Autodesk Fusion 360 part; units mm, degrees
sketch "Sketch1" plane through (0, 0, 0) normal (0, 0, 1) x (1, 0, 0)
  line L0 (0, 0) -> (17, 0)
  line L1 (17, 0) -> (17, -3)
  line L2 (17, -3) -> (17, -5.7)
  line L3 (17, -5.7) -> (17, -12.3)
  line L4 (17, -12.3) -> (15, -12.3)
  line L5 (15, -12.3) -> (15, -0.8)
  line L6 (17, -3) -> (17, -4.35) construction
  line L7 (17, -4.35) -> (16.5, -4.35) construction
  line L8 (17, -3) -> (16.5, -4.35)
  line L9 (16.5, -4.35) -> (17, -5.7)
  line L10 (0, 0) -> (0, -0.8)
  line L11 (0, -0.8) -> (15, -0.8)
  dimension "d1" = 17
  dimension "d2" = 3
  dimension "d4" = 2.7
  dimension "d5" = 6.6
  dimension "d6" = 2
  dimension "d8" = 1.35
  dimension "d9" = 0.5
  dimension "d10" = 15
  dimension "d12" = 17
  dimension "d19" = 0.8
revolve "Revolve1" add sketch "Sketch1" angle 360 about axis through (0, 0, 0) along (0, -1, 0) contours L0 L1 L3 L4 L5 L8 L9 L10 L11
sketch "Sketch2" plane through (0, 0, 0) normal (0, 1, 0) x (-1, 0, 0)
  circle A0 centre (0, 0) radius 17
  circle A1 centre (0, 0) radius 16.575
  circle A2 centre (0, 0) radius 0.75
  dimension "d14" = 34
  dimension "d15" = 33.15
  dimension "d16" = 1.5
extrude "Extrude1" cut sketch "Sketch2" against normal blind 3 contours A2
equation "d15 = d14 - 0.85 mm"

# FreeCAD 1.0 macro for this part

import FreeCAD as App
import Part
import Sketcher
from FreeCAD import Vector
Q = App.Units.Quantity

doc = App.newDocument("Part")
body = doc.addObject("PartDesign::Body", "Body")

# Sketch on XY plane
sketch1 = body.newObject("Sketcher::SketchObject", "Sketch")
sketch1.AttachmentSupport = (doc.getObject("XY_Plane"), [""])
sketch1.MapMode = "FlatFace"
sketch1.addGeometry([
    Part.LineSegment(Vector(17, 0, 0), Vector(0, 0, 0)),  # 0
    Part.LineSegment(Vector(0, 0, 0), Vector(0, -0.8, 0)),  # 1
    Part.LineSegment(Vector(0, -0.8, 0), Vector(15, -0.8, 0)),  # 2
    Part.LineSegment(Vector(15, -0.8, 0), Vector(15, -12.3, 0)),  # 3
    Part.LineSegment(Vector(15, -12.3, 0), Vector(17, -12.3, 0)),  # 4
    Part.LineSegment(Vector(17, -12.3, 0), Vector(17, -5.7, 0)),  # 5
    Part.LineSegment(Vector(17, -5.7, 0), Vector(16.5, -4.3, 0)),  # 6
    Part.LineSegment(Vector(16.5, -4.3, 0), Vector(17, -3, 0)),  # 7
    Part.LineSegment(Vector(17, -3, 0), Vector(17, 0, 0)),  # 8
], False)
sketch1.addConstraint([
    Sketcher.Constraint("Coincident", 0, 2, 1, 1),
    Sketcher.Constraint("Coincident", 1, 2, 2, 1),
    Sketcher.Constraint("Coincident", 2, 2, 3, 1),
    Sketcher.Constraint("Coincident", 3, 2, 4, 1),
    Sketcher.Constraint("Coincident", 4, 2, 5, 1),
    Sketcher.Constraint("Coincident", 5, 2, 6, 1),
    Sketcher.Constraint("Coincident", 6, 2, 7, 1),
    Sketcher.Constraint("Coincident", 7, 2, 8, 1),
    Sketcher.Constraint("Coincident", 8, 2, 0, 1),
    Sketcher.Constraint("Horizontal", 0),
    Sketcher.Constraint("Vertical", 1),
    Sketcher.Constraint("Horizontal", 2),
    Sketcher.Constraint("Vertical", 3),
    Sketcher.Constraint("Horizontal", 4),
    Sketcher.Constraint("Vertical", 5),
    Sketcher.Constraint("Vertical", 8),
    Sketcher.Constraint("Coincident", 0, 2, -1, 1),
    Sketcher.Constraint("Vertical", 5, 2, 7, 2),
    Sketcher.Constraint("Equal", 6, 7),
    Sketcher.Constraint("DistanceX", 0, 2, 0, 1, Q("17 mm")),
    Sketcher.Constraint("DistanceX", 2, 1, 2, 2, Q("15 mm")),
    Sketcher.Constraint("DistanceY", 8, 1, 8, 2, Q("3 mm")),
    Sketcher.Constraint("DistanceY", 1, 2, 1, 1, Q("0.8 mm")),
    Sketcher.Constraint("DistanceY", 5, 1, 5, 2, Q("6.6 mm")),
    Sketcher.Constraint("DistanceX", 6, 2, 5, 2, Q("0.5 mm")),
    Sketcher.Constraint("DistanceY", 5, 2, 7, 2, Q("2.7 mm")),
])
revolution = body.newObject("PartDesign::Revolution", "Revolution")
revolution.Profile = sketch1
revolution.ReferenceAxis = (sketch1, ["V_Axis"])
revolution.Angle = 360

# Sketch on XZ plane
sketch2 = body.newObject("Sketcher::SketchObject", "Sketch001")
sketch2.AttachmentSupport = (doc.getObject("XZ_Plane"), [""])
sketch2.MapMode = "FlatFace"
sketch2.addGeometry(Part.Circle(Vector(0, 0, 0), Vector(0, 0, 1), 0.8), False)
sketch2.addConstraint([
    Sketcher.Constraint("Coincident", 0, 3, -1, 1),
    Sketcher.Constraint("Diameter", 0, Q("1.5 mm")),
])
pocket1 = body.newObject("PartDesign::Pocket", "Pocket")
pocket1.Profile = sketch2
pocket1.Length = 3
pocket1.Reversed = True

doc.recompute()
